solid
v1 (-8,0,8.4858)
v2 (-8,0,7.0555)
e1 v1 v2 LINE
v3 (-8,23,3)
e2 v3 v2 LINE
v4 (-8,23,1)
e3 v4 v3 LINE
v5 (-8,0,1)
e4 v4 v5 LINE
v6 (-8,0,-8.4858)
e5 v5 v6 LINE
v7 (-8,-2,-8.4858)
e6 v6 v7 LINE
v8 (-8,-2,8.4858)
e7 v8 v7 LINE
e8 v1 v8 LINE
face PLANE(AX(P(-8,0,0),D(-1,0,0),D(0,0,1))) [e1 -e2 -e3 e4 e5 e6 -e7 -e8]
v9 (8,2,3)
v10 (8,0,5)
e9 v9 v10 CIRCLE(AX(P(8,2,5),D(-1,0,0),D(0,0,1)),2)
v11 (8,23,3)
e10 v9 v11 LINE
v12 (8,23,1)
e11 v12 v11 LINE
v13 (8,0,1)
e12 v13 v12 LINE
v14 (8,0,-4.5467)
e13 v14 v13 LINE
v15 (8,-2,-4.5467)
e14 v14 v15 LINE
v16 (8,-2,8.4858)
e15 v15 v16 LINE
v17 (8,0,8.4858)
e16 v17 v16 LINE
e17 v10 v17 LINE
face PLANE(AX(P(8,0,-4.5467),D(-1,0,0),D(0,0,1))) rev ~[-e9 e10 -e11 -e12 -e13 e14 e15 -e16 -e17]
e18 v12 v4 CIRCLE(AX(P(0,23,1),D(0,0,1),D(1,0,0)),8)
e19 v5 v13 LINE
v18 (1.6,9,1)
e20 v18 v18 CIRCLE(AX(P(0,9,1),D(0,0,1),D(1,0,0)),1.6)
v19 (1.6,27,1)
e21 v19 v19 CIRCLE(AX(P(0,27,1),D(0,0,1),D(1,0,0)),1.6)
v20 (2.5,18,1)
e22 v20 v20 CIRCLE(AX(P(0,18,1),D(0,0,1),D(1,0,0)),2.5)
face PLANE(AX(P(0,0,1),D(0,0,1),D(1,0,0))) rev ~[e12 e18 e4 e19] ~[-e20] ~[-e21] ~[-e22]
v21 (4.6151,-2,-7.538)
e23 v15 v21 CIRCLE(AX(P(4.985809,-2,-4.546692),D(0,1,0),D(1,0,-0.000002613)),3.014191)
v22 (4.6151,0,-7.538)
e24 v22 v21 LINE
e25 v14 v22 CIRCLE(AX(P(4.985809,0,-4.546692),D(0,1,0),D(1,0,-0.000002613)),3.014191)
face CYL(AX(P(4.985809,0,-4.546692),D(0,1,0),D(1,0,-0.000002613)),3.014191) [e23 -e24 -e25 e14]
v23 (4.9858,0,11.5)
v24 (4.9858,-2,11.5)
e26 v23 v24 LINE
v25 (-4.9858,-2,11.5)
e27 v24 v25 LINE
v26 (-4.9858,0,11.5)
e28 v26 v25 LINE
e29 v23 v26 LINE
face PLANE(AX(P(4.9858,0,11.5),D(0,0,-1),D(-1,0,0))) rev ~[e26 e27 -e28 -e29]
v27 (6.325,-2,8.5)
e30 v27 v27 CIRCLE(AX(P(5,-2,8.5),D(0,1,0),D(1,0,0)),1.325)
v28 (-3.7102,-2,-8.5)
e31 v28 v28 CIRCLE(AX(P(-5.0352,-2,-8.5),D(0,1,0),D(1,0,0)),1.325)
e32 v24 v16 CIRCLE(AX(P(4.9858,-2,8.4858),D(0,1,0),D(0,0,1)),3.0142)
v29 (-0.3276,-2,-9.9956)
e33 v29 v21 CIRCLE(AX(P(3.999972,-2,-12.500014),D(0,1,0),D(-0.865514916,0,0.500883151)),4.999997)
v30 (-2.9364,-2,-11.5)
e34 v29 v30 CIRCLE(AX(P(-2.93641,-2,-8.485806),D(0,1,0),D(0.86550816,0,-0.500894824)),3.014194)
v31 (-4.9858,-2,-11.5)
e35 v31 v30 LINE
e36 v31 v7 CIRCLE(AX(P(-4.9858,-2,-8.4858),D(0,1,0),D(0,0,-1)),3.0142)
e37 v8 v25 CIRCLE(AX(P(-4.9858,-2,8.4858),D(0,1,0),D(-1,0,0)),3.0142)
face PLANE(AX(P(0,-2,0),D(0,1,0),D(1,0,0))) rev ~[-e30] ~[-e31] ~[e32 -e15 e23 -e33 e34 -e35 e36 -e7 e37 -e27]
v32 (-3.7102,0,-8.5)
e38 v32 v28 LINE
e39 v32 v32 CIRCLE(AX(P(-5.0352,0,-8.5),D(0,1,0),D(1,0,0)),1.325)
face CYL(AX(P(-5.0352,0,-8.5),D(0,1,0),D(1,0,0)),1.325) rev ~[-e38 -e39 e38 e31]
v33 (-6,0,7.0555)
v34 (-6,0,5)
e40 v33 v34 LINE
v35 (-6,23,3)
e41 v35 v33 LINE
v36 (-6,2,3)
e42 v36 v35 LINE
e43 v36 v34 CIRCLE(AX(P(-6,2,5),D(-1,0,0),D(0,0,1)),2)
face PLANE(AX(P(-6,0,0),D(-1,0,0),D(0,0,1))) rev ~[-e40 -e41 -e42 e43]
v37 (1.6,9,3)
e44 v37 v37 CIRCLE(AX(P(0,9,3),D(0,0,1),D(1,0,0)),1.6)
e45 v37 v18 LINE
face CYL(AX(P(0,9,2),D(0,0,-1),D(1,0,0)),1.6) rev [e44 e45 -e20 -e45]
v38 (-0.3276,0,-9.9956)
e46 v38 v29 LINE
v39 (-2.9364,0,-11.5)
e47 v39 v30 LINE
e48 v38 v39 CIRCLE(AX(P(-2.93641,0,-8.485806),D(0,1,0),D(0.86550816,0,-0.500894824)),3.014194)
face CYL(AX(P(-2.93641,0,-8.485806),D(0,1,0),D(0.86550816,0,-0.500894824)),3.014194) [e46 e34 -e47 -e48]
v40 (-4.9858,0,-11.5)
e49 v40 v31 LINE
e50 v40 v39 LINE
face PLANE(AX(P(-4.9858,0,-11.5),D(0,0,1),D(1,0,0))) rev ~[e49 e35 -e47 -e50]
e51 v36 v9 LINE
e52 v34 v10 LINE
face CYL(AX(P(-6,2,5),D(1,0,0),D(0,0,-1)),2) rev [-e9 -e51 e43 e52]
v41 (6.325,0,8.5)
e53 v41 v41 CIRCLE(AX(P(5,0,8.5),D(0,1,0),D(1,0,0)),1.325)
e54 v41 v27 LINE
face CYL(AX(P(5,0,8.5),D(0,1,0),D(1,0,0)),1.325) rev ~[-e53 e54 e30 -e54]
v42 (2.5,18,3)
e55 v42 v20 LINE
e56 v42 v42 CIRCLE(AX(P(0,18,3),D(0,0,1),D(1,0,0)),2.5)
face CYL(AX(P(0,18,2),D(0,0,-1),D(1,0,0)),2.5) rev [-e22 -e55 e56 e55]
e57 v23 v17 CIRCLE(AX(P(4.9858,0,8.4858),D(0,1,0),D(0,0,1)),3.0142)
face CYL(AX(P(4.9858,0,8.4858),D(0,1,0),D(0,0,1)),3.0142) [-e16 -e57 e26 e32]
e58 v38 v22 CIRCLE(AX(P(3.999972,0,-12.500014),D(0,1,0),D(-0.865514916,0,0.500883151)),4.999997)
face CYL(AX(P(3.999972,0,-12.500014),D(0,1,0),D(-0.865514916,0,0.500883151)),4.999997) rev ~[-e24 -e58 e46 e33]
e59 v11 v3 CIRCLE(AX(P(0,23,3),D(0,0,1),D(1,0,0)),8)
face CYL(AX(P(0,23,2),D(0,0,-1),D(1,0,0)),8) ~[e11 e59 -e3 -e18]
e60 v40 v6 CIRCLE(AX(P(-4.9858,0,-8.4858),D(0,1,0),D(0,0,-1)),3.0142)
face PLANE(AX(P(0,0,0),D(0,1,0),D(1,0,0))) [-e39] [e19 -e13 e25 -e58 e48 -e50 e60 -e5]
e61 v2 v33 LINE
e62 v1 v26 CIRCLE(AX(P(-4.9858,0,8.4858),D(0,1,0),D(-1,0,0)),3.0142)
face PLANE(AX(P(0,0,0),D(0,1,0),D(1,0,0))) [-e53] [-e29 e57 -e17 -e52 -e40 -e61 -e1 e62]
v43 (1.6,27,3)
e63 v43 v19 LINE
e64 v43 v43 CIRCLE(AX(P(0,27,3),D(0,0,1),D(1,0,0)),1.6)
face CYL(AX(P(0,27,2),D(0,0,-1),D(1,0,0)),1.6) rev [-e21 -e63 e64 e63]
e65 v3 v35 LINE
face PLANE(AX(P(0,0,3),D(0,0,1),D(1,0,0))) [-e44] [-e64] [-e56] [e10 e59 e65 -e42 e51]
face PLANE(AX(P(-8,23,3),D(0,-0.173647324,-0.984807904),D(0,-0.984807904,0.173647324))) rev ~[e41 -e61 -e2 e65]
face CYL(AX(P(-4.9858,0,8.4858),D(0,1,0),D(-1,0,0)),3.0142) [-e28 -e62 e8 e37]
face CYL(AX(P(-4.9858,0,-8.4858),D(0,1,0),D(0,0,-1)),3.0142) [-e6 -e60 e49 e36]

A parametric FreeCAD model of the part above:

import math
import FreeCAD as App
import Part
import Sketcher
from FreeCAD import Vector
Q = App.Units.Quantity


def edges_at(feature, points):
    """Names of the edges that pass closest to the given points."""
    edges = feature.Shape.Edges
    near = lambda p: min(range(len(edges)), key=lambda i: edges[i].distToShape(Part.Vertex(*p))[0])
    return sorted({f"Edge{near(p) + 1}" for p in points})


def add_polygon(sketch, points):
    """Adds a closed chain of lines whose ends are joined by coincident constraints."""
    first, n = sketch.GeometryCount, len(points)
    for a, b in zip(points, points[1:] + points[:1]):
        sketch.addGeometry(Part.LineSegment(App.Vector(*a, 0), App.Vector(*b, 0)), False)
    for i in range(n):
        sketch.addConstraint(Sketcher.Constraint("Coincident", first + i, 2, first + (i + 1) % n, 1))

doc = App.newDocument("Part")
body = doc.addObject("PartDesign::Body", "Body")

# Sketch on XZ plane
sketch1 = body.newObject("Sketcher::SketchObject", "Sketch")
sketch1.AttachmentSupport = (doc.getObject("XZ_Plane"), [""])
sketch1.MapMode = "FlatFace"
sketch1.addGeometry(Part.LineSegment(Vector(-2.9, -11.5, 0), Vector(-5, -11.5, 0)), False)
sketch1.addGeometry(Part.ArcOfCircle(Part.Circle(Vector(-5, -8.5, 0), Vector(0, 0, 1), 3), math.radians(180), math.radians(270)), False)
sketch1.addGeometry(Part.LineSegment(Vector(-8, -8.5, 0), Vector(-8, 8.5, 0)), False)
sketch1.addGeometry(Part.ArcOfCircle(Part.Circle(Vector(-5, 8.5, 0), Vector(0, 0, 1), 3), math.radians(90), math.radians(180)), False)
sketch1.addGeometry(Part.LineSegment(Vector(-5, 11.5, 0), Vector(5, 11.5, 0)), False)
sketch1.addGeometry(Part.ArcOfCircle(Part.Circle(Vector(5, 8.5, 0), Vector(0, 0, 1), 3), math.radians(0), math.radians(90)), False)
sketch1.addGeometry(Part.LineSegment(Vector(8, 8.5, 0), Vector(8, -4.5, 0)), False)
sketch1.addGeometry(Part.ArcOfCircle(Part.Circle(Vector(5, -4.5, 0), Vector(0, 0, 1), 3), math.radians(-97), math.radians(0)), False)
sketch1.addGeometry(Part.ArcOfCircle(Part.Circle(Vector(4, -12.5, 0), Vector(0, 0, 1), 5), math.radians(83), math.radians(150)), False)
sketch1.addGeometry(Part.ArcOfCircle(Part.Circle(Vector(-2.9, -8.5, 0), Vector(0, 0, 1), 3), math.radians(-90), math.radians(-30)), False)
sketch1.addGeometry(Part.Circle(Vector(5, 8.5, 0), Vector(0, 0, 1), 1.3), False)
sketch1.addGeometry(Part.Circle(Vector(-5, -8.5, 0), Vector(0, 0, 1), 1.3), False)
sketch1.addConstraint(Sketcher.Constraint("Tangent", 0, 2, 1, 2))
sketch1.addConstraint(Sketcher.Constraint("Tangent", 1, 1, 2, 1))
sketch1.addConstraint(Sketcher.Constraint("Tangent", 2, 2, 3, 2))
sketch1.addConstraint(Sketcher.Constraint("Tangent", 3, 1, 4, 1))
sketch1.addConstraint(Sketcher.Constraint("Tangent", 4, 2, 5, 2))
sketch1.addConstraint(Sketcher.Constraint("Tangent", 5, 1, 6, 1))
sketch1.addConstraint(Sketcher.Constraint("Tangent", 6, 2, 7, 2))
sketch1.addConstraint(Sketcher.Constraint("Tangent", 7, 1, 8, 1))
sketch1.addConstraint(Sketcher.Constraint("Tangent", 8, 2, 9, 2))
sketch1.addConstraint(Sketcher.Constraint("Tangent", 9, 1, 0, 1))
sketch1.addConstraint(Sketcher.Constraint("Horizontal", 0))
sketch1.addConstraint(Sketcher.Constraint("Vertical", 2))
sketch1.addConstraint(Sketcher.Constraint("Horizontal", 4))
sketch1.addConstraint(Sketcher.Constraint("Vertical", 6))
sketch1.addConstraint(Sketcher.Constraint("Equal", 1, 3))
sketch1.addConstraint(Sketcher.Constraint("Equal", 3, 5))
sketch1.addConstraint(Sketcher.Constraint("Equal", 5, 7))
sketch1.addConstraint(Sketcher.Constraint("Equal", 7, 9))
sketch1.addConstraint(Sketcher.Constraint("Equal", 10, 11))
sketch1.addConstraint(Sketcher.Constraint("Symmetric", 1, 3, 5, 3, -1, 1))
sketch1.addConstraint(Sketcher.Constraint("Radius", 8, Q("5 mm")))
sketch1.addConstraint(Sketcher.Constraint("Diameter", 10, Q("2.65 mm")))
sketch1.addConstraint(Sketcher.Constraint("DistanceX", -1, 1, 8, 3, Q("4 mm")))
sketch1.addConstraint(Sketcher.Constraint("DistanceY", 8, 3, 11, 3, Q("4 mm")))
sketch1.addConstraint(Sketcher.Constraint("DistanceY", 0, 2, 11, 3, Q("3 mm")))
sketch1.addConstraint(Sketcher.Constraint("DistanceX", 1, 1, 8, 3, Q("12 mm")))
sketch1.addConstraint(Sketcher.Constraint("DistanceY", 10, 3, 3, 1, Q("3 mm")))
sketch1.addConstraint(Sketcher.Constraint("DistanceX", 10, 3, 5, 1, Q("3 mm")))
sketch1.addConstraint(Sketcher.Constraint("DistanceY", 8, 3, -1, 1, Q("12.5 mm")))
sketch1.addConstraint(Sketcher.Constraint("Radius", 1, Q("3.0142 mm")))
sketch1.addConstraint(Sketcher.Constraint("DistanceX", 11, 3, 7, 3, Q("10.021 mm")))
pad1 = body.newObject("PartDesign::Pad", "Pad")
pad1.Profile = sketch1
pad1.Length = 2

# Sketch on XY plane
sketch2 = body.newObject("Sketcher::SketchObject", "Sketch001")
sketch2.AttachmentSupport = (doc.getObject("XY_Plane"), [""])
sketch2.MapMode = "FlatFace"
sketch2.AttachmentOffset = App.Placement(Vector(0, 0, 2), App.Rotation())
sketch2.addGeometry(Part.LineSegment(Vector(-8, 23, 0), Vector(-8, 0, 0)), False)
sketch2.addGeometry(Part.LineSegment(Vector(-8, 0, 0), Vector(8, 0, 0)), False)
sketch2.addGeometry(Part.LineSegment(Vector(8, 0, 0), Vector(8, 23, 0)), False)
sketch2.addGeometry(Part.ArcOfCircle(Part.Circle(Vector(0, 23, 0), Vector(0, 0, 1), 8), math.radians(0), math.radians(180)), False)
sketch2.addGeometry(Part.Circle(Vector(0, 9, 0), Vector(0, 0, 1), 1.6), False)
sketch2.addGeometry(Part.Circle(Vector(0, 18, 0), Vector(0, 0, 1), 2.5), False)
sketch2.addGeometry(Part.Circle(Vector(0, 27, 0), Vector(0, 0, 1), 1.6), False)
sketch2.addConstraint(Sketcher.Constraint("Coincident", 0, 2, 1, 1))
sketch2.addConstraint(Sketcher.Constraint("Coincident", 1, 2, 2, 1))
sketch2.addConstraint(Sketcher.Constraint("Tangent", 2, 2, 3, 1))
sketch2.addConstraint(Sketcher.Constraint("Tangent", 3, 2, 0, 1))
sketch2.addConstraint(Sketcher.Constraint("Vertical", 0))
sketch2.addConstraint(Sketcher.Constraint("Horizontal", 1))
sketch2.addConstraint(Sketcher.Constraint("Vertical", 2))
sketch2.addConstraint(Sketcher.Constraint("Equal", 4, 6))
sketch2.addConstraint(Sketcher.Constraint("Symmetric", 0, 2, 1, 2, -1, 1))
sketch2.addConstraint(Sketcher.Constraint("PointOnObject", 4, 3, -2))
sketch2.addConstraint(Sketcher.Constraint("PointOnObject", 5, 3, -2))
sketch2.addConstraint(Sketcher.Constraint("PointOnObject", 6, 3, -2))
sketch2.addConstraint(Sketcher.Constraint("Diameter", 5, Q("5 mm")))
sketch2.addConstraint(Sketcher.Constraint("Radius", 3, Q("8 mm")))
sketch2.addConstraint(Sketcher.Constraint("Diameter", 4, Q("3.2 mm")))
sketch2.addConstraint(Sketcher.Constraint("DistanceY", -1, 1, 4, 3, Q("9 mm")))
sketch2.addConstraint(Sketcher.Constraint("DistanceY", -1, 1, 5, 3, Q("18 mm")))
sketch2.addConstraint(Sketcher.Constraint("DistanceY", 5, 3, 3, 3, Q("5 mm")))
sketch2.addConstraint(Sketcher.Constraint("DistanceY", 5, 3, 6, 3, Q("9 mm")))
pad2 = body.newObject("PartDesign::Pad", "Pad001")
pad2.Profile = sketch2
pad2.Length = 2
pad2.Midplane = True

# Sketch on YZ plane
sketch3 = body.newObject("Sketcher::SketchObject", "Sketch002")
sketch3.AttachmentSupport = (doc.getObject("YZ_Plane"), [""])
sketch3.MapMode = "FlatFace"
sketch3.AttachmentOffset = App.Placement(Vector(0, 0, -8), App.Rotation())
add_polygon(sketch3, [(0, 3), (0, 7.1), (23, 3)])  # lines 0-2
sketch3.addConstraint(Sketcher.Constraint("Vertical", 0))
sketch3.addConstraint(Sketcher.Constraint("Horizontal", 2))
sketch3.addConstraint(Sketcher.Constraint("PointOnObject", 0, 2, -2))
sketch3.addConstraint(Sketcher.Constraint("DistanceX", 2, 2, 2, 1, Q("23 mm")))
sketch3.addConstraint(Sketcher.Constraint("Angle", 1, Q("-10 deg")))
sketch3.addConstraint(Sketcher.Constraint("DistanceY", -1, 1, 1, 2, Q("3 mm")))
pad3 = body.newObject("PartDesign::Pad", "Pad002")
pad3.Profile = sketch3
pad3.Length = 2
doc.recompute()

fillet = body.newObject("PartDesign::Fillet", "Fillet")
fillet.Base = (pad3, edges_at(pad3, [(1, 0, 3)]))
fillet.Radius = 2

doc.recompute()
